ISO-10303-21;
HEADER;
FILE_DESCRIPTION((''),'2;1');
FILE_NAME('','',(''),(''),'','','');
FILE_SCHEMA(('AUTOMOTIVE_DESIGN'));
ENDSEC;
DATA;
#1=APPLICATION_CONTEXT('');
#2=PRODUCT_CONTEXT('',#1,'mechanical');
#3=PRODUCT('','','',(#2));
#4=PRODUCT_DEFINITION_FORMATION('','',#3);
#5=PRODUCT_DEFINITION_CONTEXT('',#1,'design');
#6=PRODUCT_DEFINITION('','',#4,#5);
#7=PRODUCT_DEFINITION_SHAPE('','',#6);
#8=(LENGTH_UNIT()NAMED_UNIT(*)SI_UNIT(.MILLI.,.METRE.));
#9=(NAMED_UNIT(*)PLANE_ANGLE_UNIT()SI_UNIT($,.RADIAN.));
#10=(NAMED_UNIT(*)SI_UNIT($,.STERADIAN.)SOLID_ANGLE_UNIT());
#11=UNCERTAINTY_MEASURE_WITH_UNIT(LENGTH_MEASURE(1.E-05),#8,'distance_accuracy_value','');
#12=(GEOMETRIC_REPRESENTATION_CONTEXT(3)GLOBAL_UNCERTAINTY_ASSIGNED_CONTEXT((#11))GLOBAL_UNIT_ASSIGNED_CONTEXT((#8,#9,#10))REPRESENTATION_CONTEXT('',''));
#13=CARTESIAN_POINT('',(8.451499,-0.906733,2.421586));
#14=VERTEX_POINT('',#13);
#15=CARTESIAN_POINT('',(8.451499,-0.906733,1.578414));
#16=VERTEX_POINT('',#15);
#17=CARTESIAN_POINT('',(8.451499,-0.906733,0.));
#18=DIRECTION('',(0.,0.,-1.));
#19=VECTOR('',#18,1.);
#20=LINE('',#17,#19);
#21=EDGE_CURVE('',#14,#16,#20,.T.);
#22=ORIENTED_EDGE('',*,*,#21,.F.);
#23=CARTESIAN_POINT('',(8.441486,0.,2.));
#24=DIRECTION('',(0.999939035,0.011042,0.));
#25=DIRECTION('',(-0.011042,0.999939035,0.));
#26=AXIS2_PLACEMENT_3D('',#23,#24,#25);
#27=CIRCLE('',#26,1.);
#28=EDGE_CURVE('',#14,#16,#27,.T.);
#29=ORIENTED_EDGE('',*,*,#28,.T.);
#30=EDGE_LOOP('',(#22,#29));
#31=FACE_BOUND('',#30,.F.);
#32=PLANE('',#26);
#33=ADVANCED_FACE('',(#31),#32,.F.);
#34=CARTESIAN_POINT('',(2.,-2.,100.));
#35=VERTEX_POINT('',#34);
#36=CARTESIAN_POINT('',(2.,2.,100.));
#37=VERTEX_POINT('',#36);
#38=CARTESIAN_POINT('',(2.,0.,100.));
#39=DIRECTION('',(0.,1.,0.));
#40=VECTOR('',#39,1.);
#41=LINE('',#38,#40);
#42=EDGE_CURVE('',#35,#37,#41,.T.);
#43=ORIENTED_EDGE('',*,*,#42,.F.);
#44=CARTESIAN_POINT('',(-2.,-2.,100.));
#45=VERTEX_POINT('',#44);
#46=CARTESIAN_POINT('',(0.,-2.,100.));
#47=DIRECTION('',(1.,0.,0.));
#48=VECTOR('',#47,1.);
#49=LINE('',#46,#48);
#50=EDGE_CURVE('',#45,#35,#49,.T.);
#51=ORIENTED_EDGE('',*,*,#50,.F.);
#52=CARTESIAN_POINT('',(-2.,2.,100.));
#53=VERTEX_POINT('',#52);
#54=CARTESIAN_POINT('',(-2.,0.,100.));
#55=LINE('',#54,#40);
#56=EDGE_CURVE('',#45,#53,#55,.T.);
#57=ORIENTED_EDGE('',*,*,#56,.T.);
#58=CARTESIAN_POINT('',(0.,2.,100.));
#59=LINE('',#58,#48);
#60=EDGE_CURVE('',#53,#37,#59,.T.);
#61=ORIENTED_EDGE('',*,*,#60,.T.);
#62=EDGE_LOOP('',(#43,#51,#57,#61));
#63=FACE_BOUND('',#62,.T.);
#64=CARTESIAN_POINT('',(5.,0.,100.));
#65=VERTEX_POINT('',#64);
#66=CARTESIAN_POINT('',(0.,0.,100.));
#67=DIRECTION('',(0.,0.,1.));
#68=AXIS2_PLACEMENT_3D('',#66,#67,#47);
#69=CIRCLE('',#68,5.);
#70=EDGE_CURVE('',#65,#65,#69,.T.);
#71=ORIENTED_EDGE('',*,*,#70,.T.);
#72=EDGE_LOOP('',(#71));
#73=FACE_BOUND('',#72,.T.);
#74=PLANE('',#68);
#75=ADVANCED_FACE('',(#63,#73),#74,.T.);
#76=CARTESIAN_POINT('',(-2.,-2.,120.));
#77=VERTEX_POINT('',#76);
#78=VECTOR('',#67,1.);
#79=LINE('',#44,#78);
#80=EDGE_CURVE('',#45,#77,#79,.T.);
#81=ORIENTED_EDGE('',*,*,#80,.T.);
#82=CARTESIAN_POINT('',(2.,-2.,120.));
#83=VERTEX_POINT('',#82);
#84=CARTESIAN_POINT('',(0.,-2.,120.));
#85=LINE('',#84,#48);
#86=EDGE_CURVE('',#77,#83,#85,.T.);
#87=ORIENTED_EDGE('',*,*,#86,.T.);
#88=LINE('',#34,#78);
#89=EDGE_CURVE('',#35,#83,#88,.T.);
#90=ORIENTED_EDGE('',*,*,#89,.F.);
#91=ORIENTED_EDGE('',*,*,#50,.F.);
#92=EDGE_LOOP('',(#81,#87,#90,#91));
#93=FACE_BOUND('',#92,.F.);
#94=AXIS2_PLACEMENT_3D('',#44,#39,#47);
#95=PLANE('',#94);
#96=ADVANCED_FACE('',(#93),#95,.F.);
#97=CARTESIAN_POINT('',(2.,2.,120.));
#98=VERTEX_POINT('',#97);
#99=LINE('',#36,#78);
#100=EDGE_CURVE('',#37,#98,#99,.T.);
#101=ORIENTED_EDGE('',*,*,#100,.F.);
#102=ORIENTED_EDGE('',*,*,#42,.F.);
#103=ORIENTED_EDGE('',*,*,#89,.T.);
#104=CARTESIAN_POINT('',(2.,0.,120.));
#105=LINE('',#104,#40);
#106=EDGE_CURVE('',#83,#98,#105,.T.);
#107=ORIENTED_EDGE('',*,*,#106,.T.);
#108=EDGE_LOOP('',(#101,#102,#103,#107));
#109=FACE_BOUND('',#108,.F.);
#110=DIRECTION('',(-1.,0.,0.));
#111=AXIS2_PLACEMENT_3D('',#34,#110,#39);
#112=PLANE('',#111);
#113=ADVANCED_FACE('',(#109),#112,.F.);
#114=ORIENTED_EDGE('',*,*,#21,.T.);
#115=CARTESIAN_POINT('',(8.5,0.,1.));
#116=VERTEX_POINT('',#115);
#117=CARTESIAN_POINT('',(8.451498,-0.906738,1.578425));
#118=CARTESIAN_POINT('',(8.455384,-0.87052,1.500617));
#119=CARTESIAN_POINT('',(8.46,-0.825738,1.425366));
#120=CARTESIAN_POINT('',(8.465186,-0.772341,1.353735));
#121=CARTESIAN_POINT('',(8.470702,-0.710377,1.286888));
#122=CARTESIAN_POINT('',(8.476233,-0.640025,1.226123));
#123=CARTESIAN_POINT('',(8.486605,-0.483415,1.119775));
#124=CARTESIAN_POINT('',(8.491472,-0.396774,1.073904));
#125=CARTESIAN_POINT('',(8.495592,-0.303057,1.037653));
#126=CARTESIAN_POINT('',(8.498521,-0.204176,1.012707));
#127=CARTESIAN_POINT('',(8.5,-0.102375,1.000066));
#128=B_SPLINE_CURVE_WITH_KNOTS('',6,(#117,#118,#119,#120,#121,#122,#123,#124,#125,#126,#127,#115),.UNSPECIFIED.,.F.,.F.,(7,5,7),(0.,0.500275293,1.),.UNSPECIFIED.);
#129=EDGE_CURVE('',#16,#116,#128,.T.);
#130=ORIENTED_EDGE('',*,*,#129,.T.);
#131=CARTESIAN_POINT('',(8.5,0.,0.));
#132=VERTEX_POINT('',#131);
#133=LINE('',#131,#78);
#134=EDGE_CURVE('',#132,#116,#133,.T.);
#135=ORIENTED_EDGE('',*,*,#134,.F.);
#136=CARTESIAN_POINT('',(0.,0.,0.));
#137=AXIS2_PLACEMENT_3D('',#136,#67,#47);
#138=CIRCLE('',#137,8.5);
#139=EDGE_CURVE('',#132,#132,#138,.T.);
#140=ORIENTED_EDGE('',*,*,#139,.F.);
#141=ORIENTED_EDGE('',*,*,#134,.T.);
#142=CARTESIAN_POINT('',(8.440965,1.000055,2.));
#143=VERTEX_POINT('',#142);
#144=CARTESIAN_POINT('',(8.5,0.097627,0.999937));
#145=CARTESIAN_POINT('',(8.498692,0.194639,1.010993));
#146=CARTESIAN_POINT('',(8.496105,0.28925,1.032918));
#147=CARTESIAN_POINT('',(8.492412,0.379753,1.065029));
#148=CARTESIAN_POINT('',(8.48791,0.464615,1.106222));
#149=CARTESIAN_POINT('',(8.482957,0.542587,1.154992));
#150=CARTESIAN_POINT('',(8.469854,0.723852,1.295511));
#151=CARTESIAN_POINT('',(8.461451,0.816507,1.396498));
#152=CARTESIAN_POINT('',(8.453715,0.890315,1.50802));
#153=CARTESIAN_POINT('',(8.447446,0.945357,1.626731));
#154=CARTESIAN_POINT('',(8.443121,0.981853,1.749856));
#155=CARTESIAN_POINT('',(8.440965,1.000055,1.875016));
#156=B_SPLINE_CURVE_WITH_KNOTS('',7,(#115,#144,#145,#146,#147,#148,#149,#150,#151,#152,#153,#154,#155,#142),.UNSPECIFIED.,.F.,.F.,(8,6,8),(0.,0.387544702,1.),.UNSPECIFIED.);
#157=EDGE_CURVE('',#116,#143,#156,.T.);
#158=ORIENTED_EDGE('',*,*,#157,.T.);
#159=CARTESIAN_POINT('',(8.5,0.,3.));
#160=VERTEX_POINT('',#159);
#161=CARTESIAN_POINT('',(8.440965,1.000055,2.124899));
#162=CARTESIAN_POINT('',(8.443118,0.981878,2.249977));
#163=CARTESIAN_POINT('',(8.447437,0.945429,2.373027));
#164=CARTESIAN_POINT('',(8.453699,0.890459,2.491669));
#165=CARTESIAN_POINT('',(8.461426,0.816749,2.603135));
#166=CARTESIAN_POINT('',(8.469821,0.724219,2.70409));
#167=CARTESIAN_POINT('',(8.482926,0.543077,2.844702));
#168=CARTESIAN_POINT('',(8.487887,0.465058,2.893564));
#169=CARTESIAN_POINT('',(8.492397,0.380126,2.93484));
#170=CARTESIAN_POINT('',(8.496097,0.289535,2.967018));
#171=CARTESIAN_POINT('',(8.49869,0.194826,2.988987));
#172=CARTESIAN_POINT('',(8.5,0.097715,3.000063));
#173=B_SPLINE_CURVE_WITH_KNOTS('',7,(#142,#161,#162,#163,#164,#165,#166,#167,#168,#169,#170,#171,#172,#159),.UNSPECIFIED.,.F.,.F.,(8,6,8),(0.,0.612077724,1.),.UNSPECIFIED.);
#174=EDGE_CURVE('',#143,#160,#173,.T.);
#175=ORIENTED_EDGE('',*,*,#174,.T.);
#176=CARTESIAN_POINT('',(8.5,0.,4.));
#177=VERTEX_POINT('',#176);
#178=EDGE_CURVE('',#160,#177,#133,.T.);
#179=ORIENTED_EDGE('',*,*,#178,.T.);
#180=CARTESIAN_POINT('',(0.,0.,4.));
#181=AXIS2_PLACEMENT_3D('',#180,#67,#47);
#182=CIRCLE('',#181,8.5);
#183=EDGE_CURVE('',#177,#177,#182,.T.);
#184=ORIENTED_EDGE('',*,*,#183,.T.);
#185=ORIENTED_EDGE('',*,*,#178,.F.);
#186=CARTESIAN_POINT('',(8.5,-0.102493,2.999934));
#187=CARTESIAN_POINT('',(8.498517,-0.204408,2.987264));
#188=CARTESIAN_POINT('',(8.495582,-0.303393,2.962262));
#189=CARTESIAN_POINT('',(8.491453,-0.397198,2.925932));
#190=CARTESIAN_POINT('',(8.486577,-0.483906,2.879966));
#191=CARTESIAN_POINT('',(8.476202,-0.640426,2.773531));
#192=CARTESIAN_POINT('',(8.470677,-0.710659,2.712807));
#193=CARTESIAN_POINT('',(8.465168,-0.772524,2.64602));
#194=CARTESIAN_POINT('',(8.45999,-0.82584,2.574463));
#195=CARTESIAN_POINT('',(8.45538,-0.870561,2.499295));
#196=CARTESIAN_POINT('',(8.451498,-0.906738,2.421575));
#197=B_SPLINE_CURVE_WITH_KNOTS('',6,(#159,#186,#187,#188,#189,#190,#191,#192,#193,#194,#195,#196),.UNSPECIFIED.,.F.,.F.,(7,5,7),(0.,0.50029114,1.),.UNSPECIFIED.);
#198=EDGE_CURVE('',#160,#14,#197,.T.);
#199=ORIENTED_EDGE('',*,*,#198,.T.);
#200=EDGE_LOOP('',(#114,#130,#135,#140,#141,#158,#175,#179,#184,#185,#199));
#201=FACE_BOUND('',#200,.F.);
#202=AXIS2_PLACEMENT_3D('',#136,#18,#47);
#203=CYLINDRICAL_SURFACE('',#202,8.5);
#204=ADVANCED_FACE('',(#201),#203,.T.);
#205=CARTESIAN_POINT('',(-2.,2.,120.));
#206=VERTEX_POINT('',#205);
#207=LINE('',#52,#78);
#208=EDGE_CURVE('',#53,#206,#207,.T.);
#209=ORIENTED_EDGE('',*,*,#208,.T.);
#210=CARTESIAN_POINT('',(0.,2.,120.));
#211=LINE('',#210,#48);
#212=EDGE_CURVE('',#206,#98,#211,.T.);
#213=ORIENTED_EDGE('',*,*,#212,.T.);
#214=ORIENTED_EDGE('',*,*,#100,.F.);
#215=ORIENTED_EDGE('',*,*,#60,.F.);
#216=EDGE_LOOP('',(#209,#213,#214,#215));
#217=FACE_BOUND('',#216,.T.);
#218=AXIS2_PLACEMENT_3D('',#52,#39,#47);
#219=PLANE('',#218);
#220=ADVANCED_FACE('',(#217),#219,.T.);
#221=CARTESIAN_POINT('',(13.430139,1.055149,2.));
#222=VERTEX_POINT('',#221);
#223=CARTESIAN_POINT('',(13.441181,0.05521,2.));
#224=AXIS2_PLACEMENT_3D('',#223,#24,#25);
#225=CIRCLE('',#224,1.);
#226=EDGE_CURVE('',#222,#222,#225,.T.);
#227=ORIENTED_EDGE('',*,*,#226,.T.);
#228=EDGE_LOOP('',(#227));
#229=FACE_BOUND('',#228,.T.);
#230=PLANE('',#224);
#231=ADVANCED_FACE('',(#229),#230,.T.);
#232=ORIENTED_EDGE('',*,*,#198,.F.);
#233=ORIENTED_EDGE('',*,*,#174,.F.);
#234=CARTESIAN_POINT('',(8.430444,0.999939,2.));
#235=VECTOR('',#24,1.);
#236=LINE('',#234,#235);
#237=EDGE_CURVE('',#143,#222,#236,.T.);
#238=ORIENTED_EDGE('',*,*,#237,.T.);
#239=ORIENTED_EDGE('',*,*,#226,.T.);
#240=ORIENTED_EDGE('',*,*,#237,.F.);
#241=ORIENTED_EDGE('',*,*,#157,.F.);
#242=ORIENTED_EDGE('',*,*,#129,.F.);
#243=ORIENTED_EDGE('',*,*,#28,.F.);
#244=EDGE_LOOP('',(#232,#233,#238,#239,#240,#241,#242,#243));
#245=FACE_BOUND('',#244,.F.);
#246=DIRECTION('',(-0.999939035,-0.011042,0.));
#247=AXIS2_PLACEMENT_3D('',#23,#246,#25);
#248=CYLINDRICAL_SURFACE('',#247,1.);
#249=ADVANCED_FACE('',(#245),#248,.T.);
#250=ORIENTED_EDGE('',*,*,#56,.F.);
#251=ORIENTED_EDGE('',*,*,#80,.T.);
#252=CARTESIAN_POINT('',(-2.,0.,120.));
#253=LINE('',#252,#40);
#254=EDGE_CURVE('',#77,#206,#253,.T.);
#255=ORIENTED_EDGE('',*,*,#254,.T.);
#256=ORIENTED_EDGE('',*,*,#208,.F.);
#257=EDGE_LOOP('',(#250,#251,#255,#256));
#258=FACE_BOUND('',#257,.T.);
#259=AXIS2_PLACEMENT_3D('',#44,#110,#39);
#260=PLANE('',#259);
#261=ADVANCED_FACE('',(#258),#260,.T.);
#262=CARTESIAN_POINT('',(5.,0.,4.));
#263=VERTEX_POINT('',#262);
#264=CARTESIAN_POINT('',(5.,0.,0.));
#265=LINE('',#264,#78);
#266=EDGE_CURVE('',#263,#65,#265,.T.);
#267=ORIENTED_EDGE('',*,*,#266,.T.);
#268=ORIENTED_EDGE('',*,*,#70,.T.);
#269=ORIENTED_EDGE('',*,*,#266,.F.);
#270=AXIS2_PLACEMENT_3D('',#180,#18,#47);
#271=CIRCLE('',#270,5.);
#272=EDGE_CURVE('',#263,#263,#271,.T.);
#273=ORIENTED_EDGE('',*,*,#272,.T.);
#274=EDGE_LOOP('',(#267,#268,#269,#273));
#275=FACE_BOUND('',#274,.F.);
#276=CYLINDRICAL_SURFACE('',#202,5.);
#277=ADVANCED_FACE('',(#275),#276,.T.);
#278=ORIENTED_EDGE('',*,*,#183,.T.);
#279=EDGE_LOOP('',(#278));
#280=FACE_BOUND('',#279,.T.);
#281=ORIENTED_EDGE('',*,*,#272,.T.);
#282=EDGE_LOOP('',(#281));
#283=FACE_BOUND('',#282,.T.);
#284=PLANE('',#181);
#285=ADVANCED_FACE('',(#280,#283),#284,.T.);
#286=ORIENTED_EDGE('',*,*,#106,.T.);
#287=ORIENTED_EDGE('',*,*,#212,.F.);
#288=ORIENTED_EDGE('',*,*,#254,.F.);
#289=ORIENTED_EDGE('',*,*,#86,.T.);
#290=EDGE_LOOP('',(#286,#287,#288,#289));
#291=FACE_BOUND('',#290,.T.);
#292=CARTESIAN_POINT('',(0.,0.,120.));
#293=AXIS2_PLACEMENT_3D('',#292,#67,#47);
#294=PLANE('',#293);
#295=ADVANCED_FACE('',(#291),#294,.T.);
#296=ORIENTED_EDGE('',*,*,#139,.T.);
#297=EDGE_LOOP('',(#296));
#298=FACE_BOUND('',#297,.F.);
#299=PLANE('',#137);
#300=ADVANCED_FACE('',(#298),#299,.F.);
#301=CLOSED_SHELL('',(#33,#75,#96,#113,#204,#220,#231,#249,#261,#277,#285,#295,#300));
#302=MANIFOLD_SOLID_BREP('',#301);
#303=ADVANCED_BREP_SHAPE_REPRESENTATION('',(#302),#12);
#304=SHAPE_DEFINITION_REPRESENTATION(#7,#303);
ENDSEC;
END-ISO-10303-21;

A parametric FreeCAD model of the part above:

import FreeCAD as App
import Part
import Sketcher
from FreeCAD import Vector
Q = App.Units.Quantity


def add_polygon(sketch, points):
    """Adds a closed chain of lines whose ends are joined by coincident constraints."""
    first, n = sketch.GeometryCount, len(points)
    for a, b in zip(points, points[1:] + points[:1]):
        sketch.addGeometry(Part.LineSegment(App.Vector(*a, 0), App.Vector(*b, 0)), False)
    for i in range(n):
        sketch.addConstraint(Sketcher.Constraint("Coincident", first + i, 2, first + (i + 1) % n, 1))

doc = App.newDocument("Part")
body = doc.addObject("PartDesign::Body", "Body")

sketch1 = body.newObject("Sketcher::SketchObject", "Sketch")
sketch1.AttachmentSupport = (doc.getObject("XY_Plane"), [""])
sketch1.MapMode = "FlatFace"
sketch1.addGeometry(Part.Circle(Vector(0, 0, 0), Vector(0, 0, 1), 8), False)
sketch1.addConstraint([
    Sketcher.Constraint("Coincident", 0, 3, -1, 1),
    Sketcher.Constraint("Diameter", 0, Q("17 mm")),
])
pad1 = body.newObject("PartDesign::Pad", "Pad")
pad1.Profile = sketch1
pad1.Length = 4

sketch2 = body.newObject("Sketcher::SketchObject", "Sketch001")
sketch2.AttachmentSupport = (doc.getObject("XY_Plane"), [""])
sketch2.MapMode = "FlatFace"
sketch2.addGeometry(Part.Circle(Vector(0, 0, 0), Vector(0, 0, 1), 5), False)
sketch2.addConstraint([
    Sketcher.Constraint("Coincident", 0, 3, -1, 1),
    Sketcher.Constraint("Diameter", 0, Q("10 mm")),
])
pad2 = body.newObject("PartDesign::Pad", "Pad001")
pad2.Profile = sketch2
pad2.Length = 100

sketch3 = body.newObject("Sketcher::SketchObject", "Sketch002")
sketch3.AttachmentSupport = (doc.getObject("XY_Plane"), [""])
sketch3.MapMode = "FlatFace"
sketch3.AttachmentOffset = App.Placement(Vector(0, 0, 100), App.Rotation())
add_polygon(sketch3, [(-2, 2), (-2, -2), (2, -2), (2, 2)])
sketch3.addConstraint([
    Sketcher.Constraint("Vertical", 0),
    Sketcher.Constraint("Horizontal", 1),
    Sketcher.Constraint("Vertical", 2),
    Sketcher.Constraint("Horizontal", 3),
    Sketcher.Constraint("Symmetric", 0, 2, 2, 2, -1, 1),
    Sketcher.Constraint("Equal", 3, 0),
    Sketcher.Constraint("DistanceX", 1, 1, 1, 2, Q("4 mm")),
])
pad3 = body.newObject("PartDesign::Pad", "Pad002")
pad3.Profile = sketch3
pad3.Length = 20

sketch4 = body.newObject("Sketcher::SketchObject", "Sketch003")
sketch4.Placement = App.Placement(Vector(8.440457, 0.093202, 0), App.Rotation(Vector(-0.011042, 0.999939035, 0), Vector(0, 0, 0.999999999), Vector(0.999939035, 0.011042, 0), "ZXY"))
sketch4.addGeometry(Part.Circle(Vector(-0.1, 2, 0), Vector(0, 0, 1), 1), False)
sketch4.addConstraint([
    Sketcher.Constraint("Diameter", 0, Q("2 mm")),
    Sketcher.Constraint("DistanceY", -1, 1, 0, 3, Q("2 mm")),
    Sketcher.Constraint("DistanceX", 0, 3, -1, 1, Q("0.093208 mm")),
])
pad4 = body.newObject("PartDesign::Pad", "Pad003")
pad4.Profile = sketch4
pad4.Length = 5

doc.recompute()
